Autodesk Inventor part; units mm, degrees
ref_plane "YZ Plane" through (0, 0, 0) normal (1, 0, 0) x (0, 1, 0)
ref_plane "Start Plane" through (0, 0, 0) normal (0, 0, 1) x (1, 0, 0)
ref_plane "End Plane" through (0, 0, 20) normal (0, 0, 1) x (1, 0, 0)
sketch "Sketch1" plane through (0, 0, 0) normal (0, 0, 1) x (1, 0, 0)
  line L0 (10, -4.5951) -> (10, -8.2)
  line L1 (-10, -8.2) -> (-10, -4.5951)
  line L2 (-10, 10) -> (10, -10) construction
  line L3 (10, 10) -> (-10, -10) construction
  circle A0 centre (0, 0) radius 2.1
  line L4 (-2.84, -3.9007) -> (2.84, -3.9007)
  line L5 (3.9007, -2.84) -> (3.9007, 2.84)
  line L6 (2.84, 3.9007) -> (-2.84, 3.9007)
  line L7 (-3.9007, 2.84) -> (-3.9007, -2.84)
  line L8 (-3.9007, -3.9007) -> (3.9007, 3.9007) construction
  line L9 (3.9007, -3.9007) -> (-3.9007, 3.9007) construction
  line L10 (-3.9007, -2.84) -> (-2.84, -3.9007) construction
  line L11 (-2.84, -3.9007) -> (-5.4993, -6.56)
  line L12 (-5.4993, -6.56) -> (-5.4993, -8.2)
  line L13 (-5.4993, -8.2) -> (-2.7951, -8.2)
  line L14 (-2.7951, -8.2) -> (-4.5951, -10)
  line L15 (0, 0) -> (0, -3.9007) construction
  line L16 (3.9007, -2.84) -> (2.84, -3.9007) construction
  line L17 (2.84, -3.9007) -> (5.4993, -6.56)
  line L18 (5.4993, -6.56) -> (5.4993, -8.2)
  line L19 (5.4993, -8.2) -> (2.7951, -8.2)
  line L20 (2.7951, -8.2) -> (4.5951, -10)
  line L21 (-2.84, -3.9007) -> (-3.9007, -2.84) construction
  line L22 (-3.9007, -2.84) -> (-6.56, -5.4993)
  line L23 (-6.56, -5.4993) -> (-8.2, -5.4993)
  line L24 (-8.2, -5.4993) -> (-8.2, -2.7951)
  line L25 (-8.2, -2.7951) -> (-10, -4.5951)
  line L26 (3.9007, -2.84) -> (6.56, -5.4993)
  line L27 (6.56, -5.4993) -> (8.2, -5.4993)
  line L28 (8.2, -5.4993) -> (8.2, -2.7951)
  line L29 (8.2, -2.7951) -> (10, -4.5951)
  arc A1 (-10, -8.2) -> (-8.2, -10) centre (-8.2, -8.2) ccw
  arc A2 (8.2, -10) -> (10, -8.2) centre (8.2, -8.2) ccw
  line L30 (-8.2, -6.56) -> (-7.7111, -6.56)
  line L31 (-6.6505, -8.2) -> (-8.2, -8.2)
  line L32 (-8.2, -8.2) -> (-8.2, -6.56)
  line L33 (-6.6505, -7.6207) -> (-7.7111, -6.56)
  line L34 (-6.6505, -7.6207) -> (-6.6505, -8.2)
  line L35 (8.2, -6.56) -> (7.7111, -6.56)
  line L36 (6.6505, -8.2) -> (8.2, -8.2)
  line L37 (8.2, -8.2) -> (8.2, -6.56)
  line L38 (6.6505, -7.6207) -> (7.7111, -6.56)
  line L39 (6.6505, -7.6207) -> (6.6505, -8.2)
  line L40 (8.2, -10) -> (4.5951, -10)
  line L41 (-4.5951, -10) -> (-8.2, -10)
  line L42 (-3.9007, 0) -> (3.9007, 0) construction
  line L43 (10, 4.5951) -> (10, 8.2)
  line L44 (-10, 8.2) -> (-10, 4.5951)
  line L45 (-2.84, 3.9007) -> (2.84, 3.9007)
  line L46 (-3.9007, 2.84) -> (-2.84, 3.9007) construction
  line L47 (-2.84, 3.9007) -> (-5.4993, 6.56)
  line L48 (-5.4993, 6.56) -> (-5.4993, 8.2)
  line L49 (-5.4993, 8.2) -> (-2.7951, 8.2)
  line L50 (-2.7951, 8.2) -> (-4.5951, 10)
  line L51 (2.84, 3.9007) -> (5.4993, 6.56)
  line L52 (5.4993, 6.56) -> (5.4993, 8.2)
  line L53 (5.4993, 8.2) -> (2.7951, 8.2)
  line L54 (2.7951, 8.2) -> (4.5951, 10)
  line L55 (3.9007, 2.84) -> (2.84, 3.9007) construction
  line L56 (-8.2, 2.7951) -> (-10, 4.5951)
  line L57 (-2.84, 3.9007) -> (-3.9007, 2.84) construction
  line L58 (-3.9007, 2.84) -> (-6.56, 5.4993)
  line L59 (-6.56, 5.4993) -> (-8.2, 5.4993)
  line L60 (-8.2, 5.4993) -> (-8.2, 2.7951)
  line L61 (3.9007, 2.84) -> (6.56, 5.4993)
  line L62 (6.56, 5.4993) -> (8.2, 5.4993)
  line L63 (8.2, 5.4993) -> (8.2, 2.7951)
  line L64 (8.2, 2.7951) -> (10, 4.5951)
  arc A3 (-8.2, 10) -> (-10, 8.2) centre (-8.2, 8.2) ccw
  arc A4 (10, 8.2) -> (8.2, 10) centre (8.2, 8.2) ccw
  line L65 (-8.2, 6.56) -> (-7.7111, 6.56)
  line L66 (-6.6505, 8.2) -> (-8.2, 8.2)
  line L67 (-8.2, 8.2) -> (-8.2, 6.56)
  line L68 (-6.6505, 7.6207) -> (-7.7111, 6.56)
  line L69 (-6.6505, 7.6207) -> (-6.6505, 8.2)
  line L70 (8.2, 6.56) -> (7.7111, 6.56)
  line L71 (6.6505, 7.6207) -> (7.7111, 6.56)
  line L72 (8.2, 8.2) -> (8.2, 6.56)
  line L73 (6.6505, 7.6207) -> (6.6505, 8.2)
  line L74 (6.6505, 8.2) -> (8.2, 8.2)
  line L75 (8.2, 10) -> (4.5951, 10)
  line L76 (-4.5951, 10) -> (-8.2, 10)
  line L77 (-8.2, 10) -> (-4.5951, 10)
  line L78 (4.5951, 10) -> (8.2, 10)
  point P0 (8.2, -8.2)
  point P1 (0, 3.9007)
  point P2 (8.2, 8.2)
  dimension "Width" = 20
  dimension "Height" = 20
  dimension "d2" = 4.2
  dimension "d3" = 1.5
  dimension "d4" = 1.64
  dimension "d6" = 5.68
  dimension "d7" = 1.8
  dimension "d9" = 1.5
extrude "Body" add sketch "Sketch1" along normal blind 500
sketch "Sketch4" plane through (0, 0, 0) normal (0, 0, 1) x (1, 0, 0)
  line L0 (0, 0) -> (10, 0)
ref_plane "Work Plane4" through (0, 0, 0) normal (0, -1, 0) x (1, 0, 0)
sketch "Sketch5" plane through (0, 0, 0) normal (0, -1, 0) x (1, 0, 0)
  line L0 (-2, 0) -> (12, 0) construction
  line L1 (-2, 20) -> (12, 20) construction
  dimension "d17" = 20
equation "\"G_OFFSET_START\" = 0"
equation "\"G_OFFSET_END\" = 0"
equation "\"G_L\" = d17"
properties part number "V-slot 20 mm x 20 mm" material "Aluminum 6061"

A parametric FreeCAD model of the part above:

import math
import FreeCAD as App
import Part
import Sketcher
from FreeCAD import Vector

doc = App.newDocument("Part")
body = doc.addObject("PartDesign::Body", "Body")

# Sketch on XY plane
sketch1 = body.newObject("Sketcher::SketchObject", "Sketch")
sketch1.AttachmentSupport = (doc.getObject("XY_Plane"), [""])
sketch1.MapMode = "FlatFace"
sketch1.addGeometry(Part.LineSegment(Vector(10, -8.2, 0), Vector(10, -4.6, 0)), False)
sketch1.addGeometry(Part.LineSegment(Vector(10, -4.6, 0), Vector(8.2, -2.8, 0)), False)
sketch1.addGeometry(Part.LineSegment(Vector(8.2, -2.8, 0), Vector(8.2, -5.5, 0)), False)
sketch1.addGeometry(Part.LineSegment(Vector(8.2, -5.5, 0), Vector(6.56, -5.5, 0)), False)
sketch1.addGeometry(Part.LineSegment(Vector(6.56, -5.5, 0), Vector(3.9, -2.84, 0)), False)
sketch1.addGeometry(Part.LineSegment(Vector(3.9, -2.84, 0), Vector(3.9, 2.84, 0)), False)
sketch1.addGeometry(Part.LineSegment(Vector(3.9, 2.84, 0), Vector(6.56, 5.5, 0)), False)
sketch1.addGeometry(Part.LineSegment(Vector(6.56, 5.5, 0), Vector(8.2, 5.5, 0)), False)
sketch1.addGeometry(Part.LineSegment(Vector(8.2, 5.5, 0), Vector(8.2, 2.8, 0)), False)
sketch1.addGeometry(Part.LineSegment(Vector(8.2, 2.8, 0), Vector(10, 4.6, 0)), False)
sketch1.addGeometry(Part.LineSegment(Vector(10, 4.6, 0), Vector(10, 8.2, 0)), False)
sketch1.addGeometry(Part.ArcOfCircle(Part.Circle(Vector(8.2, 8.2, 0), Vector(0, 0, 1), 1.8), math.radians(0), math.radians(90)), False)
sketch1.addGeometry(Part.LineSegment(Vector(8.2, 10, 0), Vector(4.6, 10, 0)), False)
sketch1.addGeometry(Part.LineSegment(Vector(4.6, 10, 0), Vector(2.8, 8.2, 0)), False)
sketch1.addGeometry(Part.LineSegment(Vector(2.8, 8.2, 0), Vector(5.5, 8.2, 0)), False)
sketch1.addGeometry(Part.LineSegment(Vector(5.5, 8.2, 0), Vector(5.5, 6.56, 0)), False)
sketch1.addGeometry(Part.LineSegment(Vector(5.5, 6.56, 0), Vector(2.84, 3.9, 0)), False)
sketch1.addGeometry(Part.LineSegment(Vector(2.84, 3.9, 0), Vector(-2.84, 3.9, 0)), False)
sketch1.addGeometry(Part.LineSegment(Vector(-2.84, 3.9, 0), Vector(-5.5, 6.56, 0)), False)
sketch1.addGeometry(Part.LineSegment(Vector(-5.5, 6.56, 0), Vector(-5.5, 8.2, 0)), False)
sketch1.addGeometry(Part.LineSegment(Vector(-5.5, 8.2, 0), Vector(-2.8, 8.2, 0)), False)
sketch1.addGeometry(Part.LineSegment(Vector(-2.8, 8.2, 0), Vector(-4.6, 10, 0)), False)
sketch1.addGeometry(Part.LineSegment(Vector(-4.6, 10, 0), Vector(-8.2, 10, 0)), False)
sketch1.addGeometry(Part.ArcOfCircle(Part.Circle(Vector(-8.2, 8.2, 0), Vector(0, 0, 1), 1.8), math.radians(90), math.radians(180)), False)
sketch1.addGeometry(Part.LineSegment(Vector(-10, 8.2, 0), Vector(-10, 4.6, 0)), False)
sketch1.addGeometry(Part.LineSegment(Vector(-10, 4.6, 0), Vector(-8.2, 2.8, 0)), False)
sketch1.addGeometry(Part.LineSegment(Vector(-8.2, 2.8, 0), Vector(-8.2, 5.5, 0)), False)
sketch1.addGeometry(Part.LineSegment(Vector(-8.2, 5.5, 0), Vector(-6.56, 5.5, 0)), False)
sketch1.addGeometry(Part.LineSegment(Vector(-6.56, 5.5, 0), Vector(-3.9, 2.84, 0)), False)
sketch1.addGeometry(Part.LineSegment(Vector(-3.9, 2.84, 0), Vector(-3.9, -2.84, 0)), False)
sketch1.addGeometry(Part.LineSegment(Vector(-3.9, -2.84, 0), Vector(-6.56, -5.5, 0)), False)
sketch1.addGeometry(Part.LineSegment(Vector(-6.56, -5.5, 0), Vector(-8.2, -5.5, 0)), False)
sketch1.addGeometry(Part.LineSegment(Vector(-8.2, -5.5, 0), Vector(-8.2, -2.8, 0)), False)
sketch1.addGeometry(Part.LineSegment(Vector(-8.2, -2.8, 0), Vector(-10, -4.6, 0)), False)
sketch1.addGeometry(Part.LineSegment(Vector(-10, -4.6, 0), Vector(-10, -8.2, 0)), False)
sketch1.addGeometry(Part.ArcOfCircle(Part.Circle(Vector(-8.2, -8.2, 0), Vector(0, 0, 1), 1.8), math.radians(180), math.radians(270)), False)
sketch1.addGeometry(Part.LineSegment(Vector(-8.2, -10, 0), Vector(-4.6, -10, 0)), False)
sketch1.addGeometry(Part.LineSegment(Vector(-4.6, -10, 0), Vector(-2.8, -8.2, 0)), False)
sketch1.addGeometry(Part.LineSegment(Vector(-2.8, -8.2, 0), Vector(-5.5, -8.2, 0)), False)
sketch1.addGeometry(Part.LineSegment(Vector(-5.5, -8.2, 0), Vector(-5.5, -6.56, 0)), False)
sketch1.addGeometry(Part.LineSegment(Vector(-5.5, -6.56, 0), Vector(-2.84, -3.9, 0)), False)
sketch1.addGeometry(Part.LineSegment(Vector(-2.84, -3.9, 0), Vector(2.84, -3.9, 0)), False)
sketch1.addGeometry(Part.LineSegment(Vector(2.84, -3.9, 0), Vector(5.5, -6.56, 0)), False)
sketch1.addGeometry(Part.LineSegment(Vector(5.5, -6.56, 0), Vector(5.5, -8.2, 0)), False)
sketch1.addGeometry(Part.LineSegment(Vector(5.5, -8.2, 0), Vector(2.8, -8.2, 0)), False)
sketch1.addGeometry(Part.LineSegment(Vector(2.8, -8.2, 0), Vector(4.6, -10, 0)), False)
sketch1.addGeometry(Part.LineSegment(Vector(4.6, -10, 0), Vector(8.2, -10, 0)), False)
sketch1.addGeometry(Part.ArcOfCircle(Part.Circle(Vector(8.2, -8.2, 0), Vector(0, 0, 1), 1.8), math.radians(-90), math.radians(0)), False)
sketch1.addGeometry(Part.LineSegment(Vector(-8.2, -8.2, 0), Vector(-8.2, -6.56, 0)), False)
sketch1.addGeometry(Part.LineSegment(Vector(-8.2, -6.56, 0), Vector(-7.71, -6.56, 0)), False)
sketch1.addGeometry(Part.LineSegment(Vector(-7.71, -6.56, 0), Vector(-6.65, -7.62, 0)), False)
sketch1.addGeometry(Part.LineSegment(Vector(-6.65, -7.62, 0), Vector(-6.65, -8.2, 0)), False)
sketch1.addGeometry(Part.LineSegment(Vector(-6.65, -8.2, 0), Vector(-8.2, -8.2, 0)), False)
sketch1.addGeometry(Part.LineSegment(Vector(7.71, -6.56, 0), Vector(8.2, -6.56, 0)), False)
sketch1.addGeometry(Part.LineSegment(Vector(8.2, -6.56, 0), Vector(8.2, -8.2, 0)), False)
sketch1.addGeometry(Part.LineSegment(Vector(8.2, -8.2, 0), Vector(6.65, -8.2, 0)), False)
sketch1.addGeometry(Part.LineSegment(Vector(6.65, -8.2, 0), Vector(6.65, -7.62, 0)), False)
sketch1.addGeometry(Part.LineSegment(Vector(6.65, -7.62, 0), Vector(7.71, -6.56, 0)), False)
sketch1.addGeometry(Part.LineSegment(Vector(-7.71, 6.56, 0), Vector(-8.2, 6.56, 0)), False)
sketch1.addGeometry(Part.LineSegment(Vector(-8.2, 6.56, 0), Vector(-8.2, 8.2, 0)), False)
sketch1.addGeometry(Part.LineSegment(Vector(-8.2, 8.2, 0), Vector(-6.65, 8.2, 0)), False)
sketch1.addGeometry(Part.LineSegment(Vector(-6.65, 8.2, 0), Vector(-6.65, 7.62, 0)), False)
sketch1.addGeometry(Part.LineSegment(Vector(-6.65, 7.62, 0), Vector(-7.71, 6.56, 0)), False)
sketch1.addGeometry(Part.Circle(Vector(0, 0, 0), Vector(0, 0, 1), 2.1), False)
sketch1.addGeometry(Part.LineSegment(Vector(8.2, 8.2, 0), Vector(8.2, 6.56, 0)), False)
sketch1.addGeometry(Part.LineSegment(Vector(8.2, 6.56, 0), Vector(7.71, 6.56, 0)), False)
sketch1.addGeometry(Part.LineSegment(Vector(7.71, 6.56, 0), Vector(6.65, 7.62, 0)), False)
sketch1.addGeometry(Part.LineSegment(Vector(6.65, 7.62, 0), Vector(6.65, 8.2, 0)), False)
sketch1.addGeometry(Part.LineSegment(Vector(6.65, 8.2, 0), Vector(8.2, 8.2, 0)), False)
sketch1.addConstraint(Sketcher.Constraint("Coincident", 0, 2, 1, 1))
sketch1.addConstraint(Sketcher.Constraint("Coincident", 1, 2, 2, 1))
sketch1.addConstraint(Sketcher.Constraint("Coincident", 2, 2, 3, 1))
sketch1.addConstraint(Sketcher.Constraint("Coincident", 3, 2, 4, 1))
sketch1.addConstraint(Sketcher.Constraint("Coincident", 4, 2, 5, 1))
sketch1.addConstraint(Sketcher.Constraint("Coincident", 5, 2, 6, 1))
sketch1.addConstraint(Sketcher.Constraint("Coincident", 6, 2, 7, 1))
sketch1.addConstraint(Sketcher.Constraint("Coincident", 7, 2, 8, 1))
sketch1.addConstraint(Sketcher.Constraint("Coincident", 8, 2, 9, 1))
sketch1.addConstraint(Sketcher.Constraint("Coincident", 9, 2, 10, 1))
sketch1.addConstraint(Sketcher.Constraint("Tangent", 10, 2, 11, 1))
sketch1.addConstraint(Sketcher.Constraint("Tangent", 11, 2, 12, 1))
sketch1.addConstraint(Sketcher.Constraint("Coincident", 12, 2, 13, 1))
sketch1.addConstraint(Sketcher.Constraint("Coincident", 13, 2, 14, 1))
sketch1.addConstraint(Sketcher.Constraint("Coincident", 14, 2, 15, 1))
sketch1.addConstraint(Sketcher.Constraint("Coincident", 15, 2, 16, 1))
sketch1.addConstraint(Sketcher.Constraint("Coincident", 16, 2, 17, 1))
sketch1.addConstraint(Sketcher.Constraint("Coincident", 17, 2, 18, 1))
sketch1.addConstraint(Sketcher.Constraint("Coincident", 18, 2, 19, 1))
sketch1.addConstraint(Sketcher.Constraint("Coincident", 19, 2, 20, 1))
sketch1.addConstraint(Sketcher.Constraint("Coincident", 20, 2, 21, 1))
sketch1.addConstraint(Sketcher.Constraint("Coincident", 21, 2, 22, 1))
sketch1.addConstraint(Sketcher.Constraint("Tangent", 22, 2, 23, 1))
sketch1.addConstraint(Sketcher.Constraint("Tangent", 23, 2, 24, 1))
sketch1.addConstraint(Sketcher.Constraint("Coincident", 24, 2, 25, 1))
sketch1.addConstraint(Sketcher.Constraint("Coincident", 25, 2, 26, 1))
sketch1.addConstraint(Sketcher.Constraint("Coincident", 26, 2, 27, 1))
sketch1.addConstraint(Sketcher.Constraint("Coincident", 27, 2, 28, 1))
sketch1.addConstraint(Sketcher.Constraint("Coincident", 28, 2, 29, 1))
sketch1.addConstraint(Sketcher.Constraint("Coincident", 29, 2, 30, 1))
sketch1.addConstraint(Sketcher.Constraint("Coincident", 30, 2, 31, 1))
sketch1.addConstraint(Sketcher.Constraint("Coincident", 31, 2, 32, 1))
sketch1.addConstraint(Sketcher.Constraint("Coincident", 32, 2, 33, 1))
sketch1.addConstraint(Sketcher.Constraint("Coincident", 33, 2, 34, 1))
sketch1.addConstraint(Sketcher.Constraint("Tangent", 34, 2, 35, 1))
sketch1.addConstraint(Sketcher.Constraint("Tangent", 35, 2, 36, 1))
sketch1.addConstraint(Sketcher.Constraint("Coincident", 36, 2, 37, 1))
sketch1.addConstraint(Sketcher.Constraint("Coincident", 37, 2, 38, 1))
sketch1.addConstraint(Sketcher.Constraint("Coincident", 38, 2, 39, 1))
sketch1.addConstraint(Sketcher.Constraint("Coincident", 39, 2, 40, 1))
sketch1.addConstraint(Sketcher.Constraint("Coincident", 40, 2, 41, 1))
sketch1.addConstraint(Sketcher.Constraint("Coincident", 41, 2, 42, 1))
sketch1.addConstraint(Sketcher.Constraint("Coincident", 42, 2, 43, 1))
sketch1.addConstraint(Sketcher.Constraint("Coincident", 43, 2, 44, 1))
sketch1.addConstraint(Sketcher.Constraint("Coincident", 44, 2, 45, 1))
sketch1.addConstraint(Sketcher.Constraint("Coincident", 45, 2, 46, 1))
sketch1.addConstraint(Sketcher.Constraint("Tangent", 46, 2, 47, 1))
sketch1.addConstraint(Sketcher.Constraint("Tangent", 47, 2, 0, 1))
sketch1.addConstraint(Sketcher.Constraint("Coincident", 48, 2, 49, 1))
sketch1.addConstraint(Sketcher.Constraint("Coincident", 49, 2, 50, 1))
sketch1.addConstraint(Sketcher.Constraint("Coincident", 50, 2, 51, 1))
sketch1.addConstraint(Sketcher.Constraint("Coincident", 51, 2, 52, 1))
sketch1.addConstraint(Sketcher.Constraint("Coincident", 52, 2, 48, 1))
sketch1.addConstraint(Sketcher.Constraint("Coincident", 53, 2, 54, 1))
sketch1.addConstraint(Sketcher.Constraint("Coincident", 54, 2, 55, 1))
sketch1.addConstraint(Sketcher.Constraint("Coincident", 55, 2, 56, 1))
sketch1.addConstraint(Sketcher.Constraint("Coincident", 56, 2, 57, 1))
sketch1.addConstraint(Sketcher.Constraint("Coincident", 57, 2, 53, 1))
sketch1.addConstraint(Sketcher.Constraint("Coincident", 58, 2, 59, 1))
sketch1.addConstraint(Sketcher.Constraint("Coincident", 59, 2, 60, 1))
sketch1.addConstraint(Sketcher.Constraint("Coincident", 60, 2, 61, 1))
sketch1.addConstraint(Sketcher.Constraint("Coincident", 61, 2, 62, 1))
sketch1.addConstraint(Sketcher.Constraint("Coincident", 62, 2, 58, 1))
sketch1.addConstraint(Sketcher.Constraint("Coincident", 64, 2, 65, 1))
sketch1.addConstraint(Sketcher.Constraint("Coincident", 65, 2, 66, 1))
sketch1.addConstraint(Sketcher.Constraint("Coincident", 66, 2, 67, 1))
sketch1.addConstraint(Sketcher.Constraint("Coincident", 67, 2, 68, 1))
sketch1.addConstraint(Sketcher.Constraint("Coincident", 68, 2, 64, 1))
sketch1.addConstraint(Sketcher.Constraint("Vertical", 0))
sketch1.addConstraint(Sketcher.Constraint("Vertical", 2))
sketch1.addConstraint(Sketcher.Constraint("Horizontal", 3))
sketch1.addConstraint(Sketcher.Constraint("Vertical", 5))
sketch1.addConstraint(Sketcher.Constraint("Horizontal", 7))
sketch1.addConstraint(Sketcher.Constraint("Vertical", 8))
sketch1.addConstraint(Sketcher.Constraint("Vertical", 10))
sketch1.addConstraint(Sketcher.Constraint("Horizontal", 12))
sketch1.addConstraint(Sketcher.Constraint("Horizontal", 14))
sketch1.addConstraint(Sketcher.Constraint("Vertical", 15))
sketch1.addConstraint(Sketcher.Constraint("Horizontal", 17))
sketch1.addConstraint(Sketcher.Constraint("Vertical", 19))
sketch1.addConstraint(Sketcher.Constraint("Horizontal", 20))
sketch1.addConstraint(Sketcher.Constraint("Horizontal", 22))
sketch1.addConstraint(Sketcher.Constraint("Vertical", 24))
sketch1.addConstraint(Sketcher.Constraint("Vertical", 26))
sketch1.addConstraint(Sketcher.Constraint("Horizontal", 27))
sketch1.addConstraint(Sketcher.Constraint("Vertical", 29))
sketch1.addConstraint(Sketcher.Constraint("Horizontal", 31))
sketch1.addConstraint(Sketcher.Constraint("Vertical", 32))
sketch1.addConstraint(Sketcher.Constraint("Vertical", 34))
sketch1.addConstraint(Sketcher.Constraint("Horizontal", 36))
sketch1.addConstraint(Sketcher.Constraint("Horizontal", 38))
sketch1.addConstraint(Sketcher.Constraint("Vertical", 39))
sketch1.addConstraint(Sketcher.Constraint("Horizontal", 41))
sketch1.addConstraint(Sketcher.Constraint("Vertical", 43))
sketch1.addConstraint(Sketcher.Constraint("Horizontal", 44))
sketch1.addConstraint(Sketcher.Constraint("Horizontal", 46))
sketch1.addConstraint(Sketcher.Constraint("Vertical", 48))
sketch1.addConstraint(Sketcher.Constraint("Horizontal", 49))
sketch1.addConstraint(Sketcher.Constraint("Vertical", 51))
sketch1.addConstraint(Sketcher.Constraint("Horizontal", 52))
sketch1.addConstraint(Sketcher.Constraint("Horizontal", 53))
sketch1.addConstraint(Sketcher.Constraint("Vertical", 54))
sketch1.addConstraint(Sketcher.Constraint("Horizontal", 55))
sketch1.addConstraint(Sketcher.Constraint("Vertical", 56))
sketch1.addConstraint(Sketcher.Constraint("Horizontal", 58))
sketch1.addConstraint(Sketcher.Constraint("Vertical", 59))
sketch1.addConstraint(Sketcher.Constraint("Horizontal", 60))
sketch1.addConstraint(Sketcher.Constraint("Vertical", 61))
sketch1.addConstraint(Sketcher.Constraint("Vertical", 64))
sketch1.addConstraint(Sketcher.Constraint("Horizontal", 65))
sketch1.addConstraint(Sketcher.Constraint("Vertical", 67))
sketch1.addConstraint(Sketcher.Constraint("Horizontal", 68))
sketch1.addConstraint(Sketcher.Constraint("Coincident", 63, 3, -1, 1))
sketch1.addConstraint(Sketcher.Constraint("Coincident", 52, 2, 35, 3))
sketch1.addConstraint(Sketcher.Constraint("Coincident", 54, 2, 47, 3))
sketch1.addConstraint(Sketcher.Constraint("Coincident", 59, 2, 23, 3))
sketch1.addConstraint(Sketcher.Constraint("Coincident", 68, 2, 11, 3))
sketch1.addConstraint(Sketcher.Constraint("Equal", 11, 23))
sketch1.addConstraint(Sketcher.Constraint("Equal", 23, 35))
sketch1.addConstraint(Sketcher.Constraint("Equal", 35, 47))
sketch1.addConstraint(Sketcher.Constraint("Symmetric", 11, 3, 35, 3, -1, 1))
sketch1.addConstraint(Sketcher.Constraint("Symmetric", 23, 3, 47, 3, -1, 1))
sketch1.addConstraint(Sketcher.Constraint("Symmetric", 1, 2, 25, 2, -1, 1))
sketch1.addConstraint(Sketcher.Constraint("Symmetric", 3, 2, 27, 2, -1, 1))
sketch1.addConstraint(Sketcher.Constraint("Symmetric", 4, 2, 28, 2, -1, 1))
sketch1.addConstraint(Sketcher.Constraint("Symmetric", 6, 2, 30, 2, -1, 1))
sketch1.addConstraint(Sketcher.Constraint("Symmetric", 8, 2, 32, 2, -1, 1))
sketch1.addConstraint(Sketcher.Constraint("Symmetric", 13, 2, 37, 2, -1, 1))
sketch1.addConstraint(Sketcher.Constraint("Symmetric", 15, 2, 39, 2, -1, 1))
sketch1.addConstraint(Sketcher.Constraint("Symmetric", 16, 2, 40, 2, -1, 1))
sketch1.addConstraint(Sketcher.Constraint("Symmetric", 18, 2, 42, 2, -1, 1))
sketch1.addConstraint(Sketcher.Constraint("Symmetric", 20, 2, 44, 2, -1, 1))
sketch1.addConstraint(Sketcher.Constraint("Symmetric", 56, 2, 61, 2, -1, 1))
sketch1.addConstraint(Sketcher.Constraint("Symmetric", 57, 2, 62, 2, -1, 1))
sketch1.addConstraint(Sketcher.Constraint("Symmetric", 49, 2, 65, 2, -1, 1))
sketch1.addConstraint(Sketcher.Constraint("Symmetric", 50, 2, 66, 2, -1, 1))
sketch1.addConstraint(Sketcher.Constraint("Symmetric", 11, 3, 23, 3, -2))
sketch1.addConstraint(Sketcher.Constraint("Symmetric", 15, 2, 18, 2, -2))
sketch1.addConstraint(Sketcher.Constraint("Symmetric", 13, 2, 20, 2, -2))
sketch1.addConstraint(Sketcher.Constraint("Symmetric", 8, 2, 25, 2, -2))
sketch1.addConstraint(Sketcher.Constraint("Symmetric", 6, 2, 27, 2, -2))
sketch1.addConstraint(Sketcher.Constraint("Symmetric", 50, 2, 56, 2, -2))
sketch1.addConstraint(Sketcher.Constraint("Symmetric", 49, 2, 57, 2, -2))
sketch1.addConstraint(Sketcher.Constraint("Parallel", 1, 4))
sketch1.addConstraint(Sketcher.Constraint("Perpendicular", 4, 6))
sketch1.addConstraint(Sketcher.Constraint("Parallel", 6, 9))
sketch1.addConstraint(Sketcher.Constraint("Parallel", 9, 13))
sketch1.addConstraint(Sketcher.Constraint("Parallel", 13, 16))
sketch1.addConstraint(Sketcher.Constraint("Perpendicular", 16, 18))
sketch1.addConstraint(Sketcher.Constraint("Parallel", 18, 21))
sketch1.addConstraint(Sketcher.Constraint("Parallel", 21, 25))
sketch1.addConstraint(Sketcher.Constraint("Perpendicular", 28, 30))
sketch1.addConstraint(Sketcher.Constraint("Parallel", 30, 33))
sketch1.addConstraint(Sketcher.Constraint("Parallel", 33, 37))
sketch1.addConstraint(Sketcher.Constraint("Perpendicular", 40, 42))
sketch1.addConstraint(Sketcher.Constraint("Parallel", 42, 45))
sketch1.addConstraint(Sketcher.Constraint("Parallel", 45, 50))
sketch1.addConstraint(Sketcher.Constraint("Perpendicular", 50, 57))
sketch1.addConstraint(Sketcher.Constraint("Horizontal", 10, 2, 13, 2))
sketch1.addConstraint(Sketcher.Constraint("Horizontal", 42, 2, 48, 2))
sketch1.addConstraint(Sketcher.Constraint("Vertical", 47, 3, 1, 2))
sketch1.addConstraint(Sketcher.Constraint("Equal", 46, 0))
sketch1.addConstraint(Sketcher.Constraint("Equal", 44, 2))
sketch1.addConstraint(Sketcher.Constraint("Equal", 41, 5))
sketch1.addConstraint(Sketcher.Constraint("Equal", 31, 15))
sketch1.addConstraint(Sketcher.Constraint("Equal", 6, 16))
sketch1.addConstraint(Sketcher.Constraint("Diameter", 63, 4.2))
sketch1.addConstraint(Sketcher.Constraint("Radius", 11, 1.8))
sketch1.addConstraint(Sketcher.Constraint("Distance", 50, 1.5))
sketch1.addConstraint(Sketcher.Constraint("DistanceX", 3, 2, 3, 1, 1.64))
sketch1.addConstraint(Sketcher.Constraint("DistanceX", 17, 2, 17, 1, 5.68))
sketch1.addConstraint(Sketcher.Constraint("DistanceX", -1, 1, 0, 2, 10.0))
sketch1.addConstraint(Sketcher.Constraint("DistanceX", 12, 2, 12, 1, 3.605))
sketch1.addConstraint(Sketcher.Constraint("DistanceX", 49, 1, 49, 2, 0.489))
sketch1.addConstraint(Sketcher.Constraint("DistanceX", 14, 1, 14, 2, 2.7042))
pad1 = body.newObject("PartDesign::Pad", "Pad")
pad1.Profile = sketch1
pad1.Length = 500

doc.recompute()
